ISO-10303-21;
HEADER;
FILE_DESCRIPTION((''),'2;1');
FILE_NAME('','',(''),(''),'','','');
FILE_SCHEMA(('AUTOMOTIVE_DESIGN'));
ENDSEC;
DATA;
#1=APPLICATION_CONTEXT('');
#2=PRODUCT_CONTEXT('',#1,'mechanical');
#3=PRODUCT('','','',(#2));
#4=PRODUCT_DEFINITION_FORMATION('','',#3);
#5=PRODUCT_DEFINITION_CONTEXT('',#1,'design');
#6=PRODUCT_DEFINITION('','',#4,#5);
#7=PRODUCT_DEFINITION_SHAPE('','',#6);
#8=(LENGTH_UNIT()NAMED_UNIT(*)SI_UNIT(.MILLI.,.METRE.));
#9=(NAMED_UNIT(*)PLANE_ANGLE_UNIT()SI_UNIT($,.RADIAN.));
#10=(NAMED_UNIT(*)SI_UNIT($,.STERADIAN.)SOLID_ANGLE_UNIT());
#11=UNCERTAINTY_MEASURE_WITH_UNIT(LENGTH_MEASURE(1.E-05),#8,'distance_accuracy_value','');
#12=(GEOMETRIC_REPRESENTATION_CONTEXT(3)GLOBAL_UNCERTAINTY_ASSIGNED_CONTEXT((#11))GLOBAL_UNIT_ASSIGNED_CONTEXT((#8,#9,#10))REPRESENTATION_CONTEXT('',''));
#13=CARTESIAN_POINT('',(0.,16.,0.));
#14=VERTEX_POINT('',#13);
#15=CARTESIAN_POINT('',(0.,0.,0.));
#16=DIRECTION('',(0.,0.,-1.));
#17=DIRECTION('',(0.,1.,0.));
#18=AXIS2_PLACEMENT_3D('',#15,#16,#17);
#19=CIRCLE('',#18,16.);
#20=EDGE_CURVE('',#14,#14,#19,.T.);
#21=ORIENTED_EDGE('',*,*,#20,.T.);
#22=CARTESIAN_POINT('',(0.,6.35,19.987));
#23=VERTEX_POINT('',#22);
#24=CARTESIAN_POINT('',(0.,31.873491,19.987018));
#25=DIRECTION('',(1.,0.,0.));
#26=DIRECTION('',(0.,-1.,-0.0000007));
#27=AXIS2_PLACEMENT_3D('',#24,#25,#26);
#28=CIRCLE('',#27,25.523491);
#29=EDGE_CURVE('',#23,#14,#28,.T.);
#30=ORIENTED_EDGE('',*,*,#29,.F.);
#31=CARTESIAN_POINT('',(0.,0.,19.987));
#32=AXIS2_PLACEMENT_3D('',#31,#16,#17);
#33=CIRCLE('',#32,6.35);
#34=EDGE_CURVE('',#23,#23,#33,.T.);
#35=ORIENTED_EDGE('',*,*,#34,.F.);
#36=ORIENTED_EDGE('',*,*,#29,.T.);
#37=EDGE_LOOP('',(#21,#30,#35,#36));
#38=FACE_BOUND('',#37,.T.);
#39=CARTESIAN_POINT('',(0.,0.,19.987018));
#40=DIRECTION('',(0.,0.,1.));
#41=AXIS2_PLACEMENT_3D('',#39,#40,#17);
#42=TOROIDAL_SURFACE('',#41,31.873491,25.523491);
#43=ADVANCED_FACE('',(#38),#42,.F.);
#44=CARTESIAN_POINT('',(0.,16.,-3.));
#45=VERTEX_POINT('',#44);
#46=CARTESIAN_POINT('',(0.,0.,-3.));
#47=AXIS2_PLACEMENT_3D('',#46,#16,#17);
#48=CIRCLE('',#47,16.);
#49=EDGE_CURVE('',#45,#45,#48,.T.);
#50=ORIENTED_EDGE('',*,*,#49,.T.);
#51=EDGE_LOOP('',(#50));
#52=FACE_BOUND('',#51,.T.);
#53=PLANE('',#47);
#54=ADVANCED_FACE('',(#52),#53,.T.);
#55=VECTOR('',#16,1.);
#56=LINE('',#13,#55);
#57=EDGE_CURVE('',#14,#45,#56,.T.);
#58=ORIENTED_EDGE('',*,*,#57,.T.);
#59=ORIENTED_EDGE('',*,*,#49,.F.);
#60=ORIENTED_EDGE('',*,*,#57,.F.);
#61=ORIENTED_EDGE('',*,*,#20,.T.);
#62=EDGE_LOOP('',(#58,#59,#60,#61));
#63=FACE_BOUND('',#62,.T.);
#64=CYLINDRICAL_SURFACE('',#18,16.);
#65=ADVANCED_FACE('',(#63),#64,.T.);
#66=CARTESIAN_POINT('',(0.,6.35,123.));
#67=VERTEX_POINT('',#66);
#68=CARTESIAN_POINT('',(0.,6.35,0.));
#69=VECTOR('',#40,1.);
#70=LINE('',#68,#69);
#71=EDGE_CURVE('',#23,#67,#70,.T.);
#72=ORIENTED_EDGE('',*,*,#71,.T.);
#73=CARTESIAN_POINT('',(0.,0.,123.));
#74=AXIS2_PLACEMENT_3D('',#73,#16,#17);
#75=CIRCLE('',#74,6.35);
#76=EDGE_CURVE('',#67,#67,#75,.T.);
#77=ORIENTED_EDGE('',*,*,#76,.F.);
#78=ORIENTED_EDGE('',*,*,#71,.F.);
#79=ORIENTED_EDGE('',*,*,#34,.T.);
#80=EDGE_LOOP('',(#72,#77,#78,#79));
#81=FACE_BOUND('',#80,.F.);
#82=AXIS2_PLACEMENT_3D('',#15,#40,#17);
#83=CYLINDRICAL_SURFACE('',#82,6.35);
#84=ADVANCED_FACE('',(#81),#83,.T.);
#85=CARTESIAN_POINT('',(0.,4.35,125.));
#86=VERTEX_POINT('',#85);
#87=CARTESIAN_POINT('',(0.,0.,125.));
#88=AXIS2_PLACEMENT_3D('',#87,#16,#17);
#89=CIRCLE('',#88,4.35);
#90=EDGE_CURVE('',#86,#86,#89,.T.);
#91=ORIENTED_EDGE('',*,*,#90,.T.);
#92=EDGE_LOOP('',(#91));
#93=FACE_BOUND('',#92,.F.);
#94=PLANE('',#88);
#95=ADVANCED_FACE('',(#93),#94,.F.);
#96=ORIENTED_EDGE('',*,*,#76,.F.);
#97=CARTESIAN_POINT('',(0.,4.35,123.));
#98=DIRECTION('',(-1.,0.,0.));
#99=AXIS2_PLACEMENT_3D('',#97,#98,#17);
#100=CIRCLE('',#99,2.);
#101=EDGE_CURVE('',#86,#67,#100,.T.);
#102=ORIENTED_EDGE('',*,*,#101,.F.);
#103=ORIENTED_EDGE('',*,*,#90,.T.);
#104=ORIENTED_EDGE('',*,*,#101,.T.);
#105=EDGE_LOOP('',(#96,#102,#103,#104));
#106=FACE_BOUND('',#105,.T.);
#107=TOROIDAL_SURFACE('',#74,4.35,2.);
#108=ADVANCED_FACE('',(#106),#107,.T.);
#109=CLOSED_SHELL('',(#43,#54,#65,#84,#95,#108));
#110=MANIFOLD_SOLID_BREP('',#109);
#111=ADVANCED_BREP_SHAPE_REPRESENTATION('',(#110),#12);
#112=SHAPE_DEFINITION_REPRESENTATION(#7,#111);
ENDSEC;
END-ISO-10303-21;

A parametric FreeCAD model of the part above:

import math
import FreeCAD as App
import Part
import Sketcher
from FreeCAD import Vector
Q = App.Units.Quantity


def edges_at(feature, points):
    """Names of the edges that pass closest to the given points."""
    edges = feature.Shape.Edges
    near = lambda p: min(range(len(edges)), key=lambda i: edges[i].distToShape(Part.Vertex(*p))[0])
    return sorted({f"Edge{near(p) + 1}" for p in points})

doc = App.newDocument("Part")
body = doc.addObject("PartDesign::Body", "Body")

sketch1 = body.newObject("Sketcher::SketchObject", "Sketch")
sketch1.AttachmentSupport = (doc.getObject("YZ_Plane"), [""])
sketch1.MapMode = "FlatFace"
sketch1.addGeometry([
    Part.LineSegment(Vector(0, 125, 0), Vector(0, -3, 0)),
    Part.LineSegment(Vector(0, -3, 0), Vector(16, -3, 0)),
    Part.LineSegment(Vector(16, -3, 0), Vector(16, 0, 0)),
    Part.ArcOfCircle(Part.Circle(Vector(31.9, 20, 0), Vector(0, 0, 1), 25.5), math.radians(180), math.radians(232)),
    Part.LineSegment(Vector(6.3, 20, 0), Vector(6.3, 125, 0)),
    Part.LineSegment(Vector(6.3, 125, 0), Vector(0, 125, 0)),
], False)
sketch1.addConstraint([
    Sketcher.Constraint("Coincident", 0, 2, 1, 1),
    Sketcher.Constraint("Coincident", 1, 2, 2, 1),
    Sketcher.Constraint("Coincident", 2, 2, 3, 2),
    Sketcher.Constraint("Tangent", 3, 1, 4, 1),
    Sketcher.Constraint("Coincident", 4, 2, 5, 1),
    Sketcher.Constraint("Coincident", 5, 2, 0, 1),
    Sketcher.Constraint("Vertical", 0),
    Sketcher.Constraint("Horizontal", 1),
    Sketcher.Constraint("Vertical", 2),
    Sketcher.Constraint("Vertical", 4),
    Sketcher.Constraint("Horizontal", 5),
    Sketcher.Constraint("PointOnObject", 0, 2, -2),
    Sketcher.Constraint("PointOnObject", 2, 2, -1),
    Sketcher.Constraint("DistanceX", 1, 1, 1, 2, Q("16 mm")),
    Sketcher.Constraint("DistanceY", 2, 1, 2, 2, Q("3 mm")),
    Sketcher.Constraint("DistanceY", -1, 1, 4, 2, Q("125 mm")),
    Sketcher.Constraint("DistanceX", 5, 2, 5, 1, Q("6.35 mm")),
    Sketcher.Constraint("Radius", 3, Q("25.5235 mm")),
])
revolution = body.newObject("PartDesign::Revolution", "Revolution")
revolution.Profile = sketch1
revolution.ReferenceAxis = (sketch1, ["V_Axis"])
revolution.Angle = 360
doc.recompute()

fillet = body.newObject("PartDesign::Fillet", "Fillet")
fillet.Base = (revolution, edges_at(revolution, [(-5.92, 2.296, 125)]))
fillet.Radius = 2

doc.recompute()
